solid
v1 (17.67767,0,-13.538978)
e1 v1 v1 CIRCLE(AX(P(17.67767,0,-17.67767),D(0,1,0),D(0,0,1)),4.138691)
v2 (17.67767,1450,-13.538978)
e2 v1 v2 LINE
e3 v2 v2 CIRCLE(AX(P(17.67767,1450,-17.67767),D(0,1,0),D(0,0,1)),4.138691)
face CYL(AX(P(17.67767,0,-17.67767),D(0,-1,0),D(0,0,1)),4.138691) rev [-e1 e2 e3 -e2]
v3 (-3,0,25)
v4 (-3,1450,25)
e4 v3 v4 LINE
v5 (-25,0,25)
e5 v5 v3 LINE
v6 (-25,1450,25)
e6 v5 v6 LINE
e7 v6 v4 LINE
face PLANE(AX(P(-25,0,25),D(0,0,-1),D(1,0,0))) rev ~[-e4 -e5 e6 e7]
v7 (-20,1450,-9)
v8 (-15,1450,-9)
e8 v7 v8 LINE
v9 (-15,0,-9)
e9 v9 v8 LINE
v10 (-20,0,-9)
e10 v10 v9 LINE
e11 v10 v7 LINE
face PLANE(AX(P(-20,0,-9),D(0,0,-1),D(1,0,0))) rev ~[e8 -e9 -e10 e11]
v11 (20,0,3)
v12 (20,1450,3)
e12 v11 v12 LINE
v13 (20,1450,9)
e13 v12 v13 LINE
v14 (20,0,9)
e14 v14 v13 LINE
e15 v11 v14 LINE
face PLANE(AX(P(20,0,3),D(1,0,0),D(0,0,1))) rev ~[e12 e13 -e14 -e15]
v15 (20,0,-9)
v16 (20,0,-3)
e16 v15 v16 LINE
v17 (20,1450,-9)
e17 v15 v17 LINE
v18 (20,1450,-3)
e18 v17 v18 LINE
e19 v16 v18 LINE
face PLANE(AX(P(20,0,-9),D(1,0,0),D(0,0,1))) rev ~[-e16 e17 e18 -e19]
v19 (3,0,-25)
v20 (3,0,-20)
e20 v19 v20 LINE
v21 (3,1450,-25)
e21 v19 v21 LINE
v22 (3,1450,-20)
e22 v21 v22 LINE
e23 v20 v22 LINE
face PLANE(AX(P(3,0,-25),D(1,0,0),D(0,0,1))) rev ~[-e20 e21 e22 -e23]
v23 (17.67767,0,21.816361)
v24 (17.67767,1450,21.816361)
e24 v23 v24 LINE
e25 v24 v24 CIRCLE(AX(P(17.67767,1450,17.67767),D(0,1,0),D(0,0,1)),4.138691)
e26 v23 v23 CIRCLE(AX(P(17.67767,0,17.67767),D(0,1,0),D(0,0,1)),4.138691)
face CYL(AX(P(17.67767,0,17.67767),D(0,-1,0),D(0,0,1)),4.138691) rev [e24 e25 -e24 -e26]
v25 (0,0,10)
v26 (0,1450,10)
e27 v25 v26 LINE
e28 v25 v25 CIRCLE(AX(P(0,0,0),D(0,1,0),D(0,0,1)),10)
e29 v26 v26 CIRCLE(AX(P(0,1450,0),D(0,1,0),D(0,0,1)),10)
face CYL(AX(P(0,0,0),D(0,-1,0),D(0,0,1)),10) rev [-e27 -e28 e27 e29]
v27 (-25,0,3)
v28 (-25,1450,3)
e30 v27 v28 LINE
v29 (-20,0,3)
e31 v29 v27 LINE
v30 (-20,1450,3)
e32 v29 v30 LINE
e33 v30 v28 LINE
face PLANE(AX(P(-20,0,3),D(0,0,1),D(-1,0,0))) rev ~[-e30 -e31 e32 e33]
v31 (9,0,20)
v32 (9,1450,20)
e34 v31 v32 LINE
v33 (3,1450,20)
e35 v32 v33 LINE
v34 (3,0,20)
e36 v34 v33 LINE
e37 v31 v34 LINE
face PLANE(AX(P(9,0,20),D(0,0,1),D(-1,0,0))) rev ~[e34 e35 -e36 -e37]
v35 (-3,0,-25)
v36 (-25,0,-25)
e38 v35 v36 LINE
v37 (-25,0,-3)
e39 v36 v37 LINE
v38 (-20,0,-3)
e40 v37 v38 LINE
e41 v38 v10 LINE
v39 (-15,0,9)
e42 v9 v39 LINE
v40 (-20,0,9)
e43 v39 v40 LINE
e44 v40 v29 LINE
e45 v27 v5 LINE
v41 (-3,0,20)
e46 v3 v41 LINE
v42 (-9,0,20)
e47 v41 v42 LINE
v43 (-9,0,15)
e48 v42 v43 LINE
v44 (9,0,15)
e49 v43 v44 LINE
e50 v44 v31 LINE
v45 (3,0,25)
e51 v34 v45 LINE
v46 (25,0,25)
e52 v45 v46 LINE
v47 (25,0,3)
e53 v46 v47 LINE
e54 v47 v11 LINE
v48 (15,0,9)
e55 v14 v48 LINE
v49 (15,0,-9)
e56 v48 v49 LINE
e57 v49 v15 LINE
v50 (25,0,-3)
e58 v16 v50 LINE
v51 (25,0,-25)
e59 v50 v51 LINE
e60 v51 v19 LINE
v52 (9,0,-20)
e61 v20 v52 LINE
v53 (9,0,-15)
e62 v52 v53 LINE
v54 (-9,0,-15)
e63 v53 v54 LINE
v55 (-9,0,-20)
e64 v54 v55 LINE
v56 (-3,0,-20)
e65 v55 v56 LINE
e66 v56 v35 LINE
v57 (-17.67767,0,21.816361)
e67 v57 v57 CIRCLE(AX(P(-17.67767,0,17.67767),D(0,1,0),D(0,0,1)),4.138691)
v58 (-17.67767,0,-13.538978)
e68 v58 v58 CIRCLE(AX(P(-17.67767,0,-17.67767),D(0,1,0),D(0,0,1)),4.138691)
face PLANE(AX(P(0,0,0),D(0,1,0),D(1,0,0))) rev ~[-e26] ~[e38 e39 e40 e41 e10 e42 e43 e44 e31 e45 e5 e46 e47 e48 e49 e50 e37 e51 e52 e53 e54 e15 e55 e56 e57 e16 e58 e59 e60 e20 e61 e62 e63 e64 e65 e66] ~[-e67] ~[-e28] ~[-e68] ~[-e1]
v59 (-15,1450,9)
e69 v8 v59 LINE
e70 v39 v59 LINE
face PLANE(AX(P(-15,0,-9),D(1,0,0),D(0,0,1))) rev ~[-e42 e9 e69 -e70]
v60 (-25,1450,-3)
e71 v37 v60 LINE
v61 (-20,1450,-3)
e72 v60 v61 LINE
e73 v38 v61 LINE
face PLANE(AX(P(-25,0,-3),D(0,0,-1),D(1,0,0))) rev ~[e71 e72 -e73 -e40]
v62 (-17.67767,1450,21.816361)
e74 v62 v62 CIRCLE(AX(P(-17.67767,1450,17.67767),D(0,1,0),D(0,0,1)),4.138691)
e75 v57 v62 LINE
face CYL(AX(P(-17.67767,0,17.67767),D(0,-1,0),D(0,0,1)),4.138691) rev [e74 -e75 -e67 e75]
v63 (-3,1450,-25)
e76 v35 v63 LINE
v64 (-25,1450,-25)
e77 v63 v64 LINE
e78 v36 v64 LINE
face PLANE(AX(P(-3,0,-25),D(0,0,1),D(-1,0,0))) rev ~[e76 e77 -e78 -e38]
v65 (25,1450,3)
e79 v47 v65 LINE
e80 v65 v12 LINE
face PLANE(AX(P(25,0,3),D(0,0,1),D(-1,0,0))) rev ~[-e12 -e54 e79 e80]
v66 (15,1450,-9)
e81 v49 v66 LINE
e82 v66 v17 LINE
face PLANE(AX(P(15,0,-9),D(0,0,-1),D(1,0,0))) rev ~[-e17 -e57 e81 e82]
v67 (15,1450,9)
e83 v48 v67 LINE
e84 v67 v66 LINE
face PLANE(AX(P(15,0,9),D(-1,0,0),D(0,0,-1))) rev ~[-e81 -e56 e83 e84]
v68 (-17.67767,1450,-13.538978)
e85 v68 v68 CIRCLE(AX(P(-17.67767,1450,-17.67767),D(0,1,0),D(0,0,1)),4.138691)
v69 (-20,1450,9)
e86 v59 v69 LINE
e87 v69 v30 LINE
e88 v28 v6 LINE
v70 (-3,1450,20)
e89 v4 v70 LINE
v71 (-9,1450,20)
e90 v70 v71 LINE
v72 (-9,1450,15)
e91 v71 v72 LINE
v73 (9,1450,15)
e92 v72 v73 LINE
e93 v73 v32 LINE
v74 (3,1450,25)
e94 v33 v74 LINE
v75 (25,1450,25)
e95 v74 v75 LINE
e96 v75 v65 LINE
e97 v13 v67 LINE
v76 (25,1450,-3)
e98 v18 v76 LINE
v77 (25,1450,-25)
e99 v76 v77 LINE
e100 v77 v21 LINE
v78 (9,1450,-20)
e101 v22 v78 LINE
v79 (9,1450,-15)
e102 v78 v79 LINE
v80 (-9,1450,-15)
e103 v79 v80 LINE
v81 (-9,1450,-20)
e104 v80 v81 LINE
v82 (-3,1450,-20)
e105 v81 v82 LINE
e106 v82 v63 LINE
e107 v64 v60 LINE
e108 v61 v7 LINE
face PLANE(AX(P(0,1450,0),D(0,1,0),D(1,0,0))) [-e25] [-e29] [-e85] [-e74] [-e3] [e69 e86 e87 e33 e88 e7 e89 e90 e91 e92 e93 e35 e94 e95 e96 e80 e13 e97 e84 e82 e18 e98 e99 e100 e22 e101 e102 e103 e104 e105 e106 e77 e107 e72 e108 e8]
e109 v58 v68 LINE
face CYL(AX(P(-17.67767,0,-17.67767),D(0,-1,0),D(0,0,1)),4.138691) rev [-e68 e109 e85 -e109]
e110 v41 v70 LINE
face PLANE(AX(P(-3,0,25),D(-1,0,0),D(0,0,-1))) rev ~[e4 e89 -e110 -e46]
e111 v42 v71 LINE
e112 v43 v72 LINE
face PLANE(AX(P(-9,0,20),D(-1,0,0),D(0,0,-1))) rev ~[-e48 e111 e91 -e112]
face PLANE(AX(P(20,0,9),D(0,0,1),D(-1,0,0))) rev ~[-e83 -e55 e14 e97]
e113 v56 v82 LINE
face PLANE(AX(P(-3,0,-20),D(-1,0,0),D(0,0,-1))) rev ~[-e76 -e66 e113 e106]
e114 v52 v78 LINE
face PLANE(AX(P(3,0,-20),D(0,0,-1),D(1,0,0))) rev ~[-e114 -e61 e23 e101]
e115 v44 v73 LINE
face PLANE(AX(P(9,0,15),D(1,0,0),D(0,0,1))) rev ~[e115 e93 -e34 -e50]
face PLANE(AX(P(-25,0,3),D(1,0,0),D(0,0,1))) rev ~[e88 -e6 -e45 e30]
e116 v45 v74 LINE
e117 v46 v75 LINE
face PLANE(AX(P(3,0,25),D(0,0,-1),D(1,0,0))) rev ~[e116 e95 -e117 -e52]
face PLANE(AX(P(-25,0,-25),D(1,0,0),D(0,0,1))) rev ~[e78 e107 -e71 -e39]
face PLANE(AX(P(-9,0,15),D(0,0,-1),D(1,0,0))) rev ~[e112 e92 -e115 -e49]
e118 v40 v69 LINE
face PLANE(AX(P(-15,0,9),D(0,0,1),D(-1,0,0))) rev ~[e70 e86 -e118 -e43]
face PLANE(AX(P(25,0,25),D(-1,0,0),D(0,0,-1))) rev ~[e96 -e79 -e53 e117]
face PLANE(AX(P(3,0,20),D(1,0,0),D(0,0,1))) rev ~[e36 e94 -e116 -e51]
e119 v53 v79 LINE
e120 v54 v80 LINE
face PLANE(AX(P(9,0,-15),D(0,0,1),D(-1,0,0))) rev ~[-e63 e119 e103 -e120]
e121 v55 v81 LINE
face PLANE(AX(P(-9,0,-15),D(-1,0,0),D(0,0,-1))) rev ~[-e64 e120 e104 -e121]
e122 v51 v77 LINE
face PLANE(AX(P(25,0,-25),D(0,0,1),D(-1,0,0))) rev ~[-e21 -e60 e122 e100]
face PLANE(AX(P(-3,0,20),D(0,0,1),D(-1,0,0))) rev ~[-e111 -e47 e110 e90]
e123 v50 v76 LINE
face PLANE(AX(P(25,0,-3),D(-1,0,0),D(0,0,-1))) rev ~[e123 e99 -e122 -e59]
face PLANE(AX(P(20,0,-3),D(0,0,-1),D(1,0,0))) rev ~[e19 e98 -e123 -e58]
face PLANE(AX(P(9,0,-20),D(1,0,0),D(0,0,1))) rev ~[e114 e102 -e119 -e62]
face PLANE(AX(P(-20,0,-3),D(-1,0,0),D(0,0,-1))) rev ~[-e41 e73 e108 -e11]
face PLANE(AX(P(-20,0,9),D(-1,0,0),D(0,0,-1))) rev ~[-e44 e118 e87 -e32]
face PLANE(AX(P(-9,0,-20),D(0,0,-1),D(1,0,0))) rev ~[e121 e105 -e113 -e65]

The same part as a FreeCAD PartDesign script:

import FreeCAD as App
import Part
import Sketcher
from FreeCAD import Vector
Q = App.Units.Quantity

doc = App.newDocument("Part")
params = doc.addObject("Spreadsheet::Sheet", "Params")
for row, (alias, value) in enumerate([
    ("sketch1_diameter", "20 mm"),
    ("sketch1_width", "22 mm"),
    ("sketch1_width2", "6 mm"),
    ("sketch1_width3", "18 mm"),
    ("sketch1_width4", "5 mm"),
    ("pad1_length", "1450 mm"),
], start=1):
    params.set(f"A{row}", alias)
    params.set(f"B{row}", "=" + value)
    params.setAlias(f"B{row}", alias)

body = doc.addObject("PartDesign::Body", "Body")

sketch1 = body.newObject("Sketcher::SketchObject", "Sketch")
sketch1.AttachmentSupport = (doc.getObject("XZ_Plane"), [""])
sketch1.MapMode = "FlatFace"
sketch1.addGeometry(Part.LineSegment(Vector(-25, 3, 0), Vector(-25, 25, 0)), False)
sketch1.addGeometry(Part.LineSegment(Vector(-25, 25, 0), Vector(-3, 25, 0)), False)
sketch1.addGeometry(Part.LineSegment(Vector(-3, 25, 0), Vector(-3, 20, 0)), False)
sketch1.addGeometry(Part.LineSegment(Vector(-3, 20, 0), Vector(-9, 20, 0)), False)
sketch1.addGeometry(Part.LineSegment(Vector(-9, 20, 0), Vector(-9, 15, 0)), False)
sketch1.addGeometry(Part.LineSegment(Vector(-9, 15, 0), Vector(9, 15, 0)), False)
sketch1.addGeometry(Part.LineSegment(Vector(9, 15, 0), Vector(9, 20, 0)), False)
sketch1.addGeometry(Part.LineSegment(Vector(9, 20, 0), Vector(3, 20, 0)), False)
sketch1.addGeometry(Part.LineSegment(Vector(3, 20, 0), Vector(3, 25, 0)), False)
sketch1.addGeometry(Part.LineSegment(Vector(3, 25, 0), Vector(25, 25, 0)), False)
sketch1.addGeometry(Part.LineSegment(Vector(25, 25, 0), Vector(25, 3, 0)), False)
sketch1.addGeometry(Part.LineSegment(Vector(25, 3, 0), Vector(20, 3, 0)), False)
sketch1.addGeometry(Part.LineSegment(Vector(20, 3, 0), Vector(20, 9, 0)), False)
sketch1.addGeometry(Part.LineSegment(Vector(20, 9, 0), Vector(15, 9, 0)), False)
sketch1.addGeometry(Part.LineSegment(Vector(15, 9, 0), Vector(15, -9, 0)), False)
sketch1.addGeometry(Part.LineSegment(Vector(15, -9, 0), Vector(20, -9, 0)), False)
sketch1.addGeometry(Part.LineSegment(Vector(20, -9, 0), Vector(20, -3, 0)), False)
sketch1.addGeometry(Part.LineSegment(Vector(20, -3, 0), Vector(25, -3, 0)), False)
sketch1.addGeometry(Part.LineSegment(Vector(25, -3, 0), Vector(25, -25, 0)), False)
sketch1.addGeometry(Part.LineSegment(Vector(25, -25, 0), Vector(3, -25, 0)), False)
sketch1.addGeometry(Part.LineSegment(Vector(3, -25, 0), Vector(3, -20, 0)), False)
sketch1.addGeometry(Part.LineSegment(Vector(3, -20, 0), Vector(9, -20, 0)), False)
sketch1.addGeometry(Part.LineSegment(Vector(9, -20, 0), Vector(9, -15, 0)), False)
sketch1.addGeometry(Part.LineSegment(Vector(9, -15, 0), Vector(-9, -15, 0)), False)
sketch1.addGeometry(Part.LineSegment(Vector(-9, -15, 0), Vector(-9, -20, 0)), False)
sketch1.addGeometry(Part.LineSegment(Vector(-9, -20, 0), Vector(-3, -20, 0)), False)
sketch1.addGeometry(Part.LineSegment(Vector(-3, -20, 0), Vector(-3, -25, 0)), False)
sketch1.addGeometry(Part.LineSegment(Vector(-3, -25, 0), Vector(-25, -25, 0)), False)
sketch1.addGeometry(Part.LineSegment(Vector(-25, -25, 0), Vector(-25, -3, 0)), False)
sketch1.addGeometry(Part.LineSegment(Vector(-25, -3, 0), Vector(-20, -3, 0)), False)
sketch1.addGeometry(Part.LineSegment(Vector(-20, -3, 0), Vector(-20, -9, 0)), False)
sketch1.addGeometry(Part.LineSegment(Vector(-20, -9, 0), Vector(-15, -9, 0)), False)
sketch1.addGeometry(Part.LineSegment(Vector(-15, -9, 0), Vector(-15, 9, 0)), False)
sketch1.addGeometry(Part.LineSegment(Vector(-15, 9, 0), Vector(-20, 9, 0)), False)
sketch1.addGeometry(Part.LineSegment(Vector(-20, 9, 0), Vector(-20, 3, 0)), False)
sketch1.addGeometry(Part.LineSegment(Vector(-20, 3, 0), Vector(-25, 3, 0)), False)
sketch1.addGeometry(Part.Circle(Vector(-17.7, 17.7, 0), Vector(0, 0, 1), 4.1), False)
sketch1.addGeometry(Part.Circle(Vector(17.7, 17.7, 0), Vector(0, 0, 1), 4.1), False)
sketch1.addGeometry(Part.Circle(Vector(-17.7, -17.7, 0), Vector(0, 0, 1), 4.1), False)
sketch1.addGeometry(Part.Circle(Vector(0, 0, 0), Vector(0, 0, 1), 10), False)
sketch1.addGeometry(Part.Circle(Vector(17.7, -17.7, 0), Vector(0, 0, 1), 4.1), False)
sketch1.addConstraint(Sketcher.Constraint("Coincident", 0, 2, 1, 1))
sketch1.addConstraint(Sketcher.Constraint("Coincident", 1, 2, 2, 1))
sketch1.addConstraint(Sketcher.Constraint("Coincident", 2, 2, 3, 1))
sketch1.addConstraint(Sketcher.Constraint("Coincident", 3, 2, 4, 1))
sketch1.addConstraint(Sketcher.Constraint("Coincident", 4, 2, 5, 1))
sketch1.addConstraint(Sketcher.Constraint("Coincident", 5, 2, 6, 1))
sketch1.addConstraint(Sketcher.Constraint("Coincident", 6, 2, 7, 1))
sketch1.addConstraint(Sketcher.Constraint("Coincident", 7, 2, 8, 1))
sketch1.addConstraint(Sketcher.Constraint("Coincident", 8, 2, 9, 1))
sketch1.addConstraint(Sketcher.Constraint("Coincident", 9, 2, 10, 1))
sketch1.addConstraint(Sketcher.Constraint("Coincident", 10, 2, 11, 1))
sketch1.addConstraint(Sketcher.Constraint("Coincident", 11, 2, 12, 1))
sketch1.addConstraint(Sketcher.Constraint("Coincident", 12, 2, 13, 1))
sketch1.addConstraint(Sketcher.Constraint("Coincident", 13, 2, 14, 1))
sketch1.addConstraint(Sketcher.Constraint("Coincident", 14, 2, 15, 1))
sketch1.addConstraint(Sketcher.Constraint("Coincident", 15, 2, 16, 1))
sketch1.addConstraint(Sketcher.Constraint("Coincident", 16, 2, 17, 1))
sketch1.addConstraint(Sketcher.Constraint("Coincident", 17, 2, 18, 1))
sketch1.addConstraint(Sketcher.Constraint("Coincident", 18, 2, 19, 1))
sketch1.addConstraint(Sketcher.Constraint("Coincident", 19, 2, 20, 1))
sketch1.addConstraint(Sketcher.Constraint("Coincident", 20, 2, 21, 1))
sketch1.addConstraint(Sketcher.Constraint("Coincident", 21, 2, 22, 1))
sketch1.addConstraint(Sketcher.Constraint("Coincident", 22, 2, 23, 1))
sketch1.addConstraint(Sketcher.Constraint("Coincident", 23, 2, 24, 1))
sketch1.addConstraint(Sketcher.Constraint("Coincident", 24, 2, 25, 1))
sketch1.addConstraint(Sketcher.Constraint("Coincident", 25, 2, 26, 1))
sketch1.addConstraint(Sketcher.Constraint("Coincident", 26, 2, 27, 1))
sketch1.addConstraint(Sketcher.Constraint("Coincident", 27, 2, 28, 1))
sketch1.addConstraint(Sketcher.Constraint("Coincident", 28, 2, 29, 1))
sketch1.addConstraint(Sketcher.Constraint("Coincident", 29, 2, 30, 1))
sketch1.addConstraint(Sketcher.Constraint("Coincident", 30, 2, 31, 1))
sketch1.addConstraint(Sketcher.Constraint("Coincident", 31, 2, 32, 1))
sketch1.addConstraint(Sketcher.Constraint("Coincident", 32, 2, 33, 1))
sketch1.addConstraint(Sketcher.Constraint("Coincident", 33, 2, 34, 1))
sketch1.addConstraint(Sketcher.Constraint("Coincident", 34, 2, 35, 1))
sketch1.addConstraint(Sketcher.Constraint("Coincident", 35, 2, 0, 1))
sketch1.addConstraint(Sketcher.Constraint("Vertical", 0))
sketch1.addConstraint(Sketcher.Constraint("Horizontal", 1))
sketch1.addConstraint(Sketcher.Constraint("Vertical", 2))
sketch1.addConstraint(Sketcher.Constraint("Horizontal", 3))
sketch1.addConstraint(Sketcher.Constraint("Vertical", 4))
sketch1.addConstraint(Sketcher.Constraint("Horizontal", 5))
sketch1.addConstraint(Sketcher.Constraint("Vertical", 6))
sketch1.addConstraint(Sketcher.Constraint("Horizontal", 7))
sketch1.addConstraint(Sketcher.Constraint("Vertical", 8))
sketch1.addConstraint(Sketcher.Constraint("Horizontal", 9))
sketch1.addConstraint(Sketcher.Constraint("Vertical", 10))
sketch1.addConstraint(Sketcher.Constraint("Horizontal", 11))
sketch1.addConstraint(Sketcher.Constraint("Vertical", 12))
sketch1.addConstraint(Sketcher.Constraint("Horizontal", 13))
sketch1.addConstraint(Sketcher.Constraint("Vertical", 14))
sketch1.addConstraint(Sketcher.Constraint("Horizontal", 15))
sketch1.addConstraint(Sketcher.Constraint("Vertical", 16))
sketch1.addConstraint(Sketcher.Constraint("Horizontal", 17))
sketch1.addConstraint(Sketcher.Constraint("Vertical", 18))
sketch1.addConstraint(Sketcher.Constraint("Horizontal", 19))
sketch1.addConstraint(Sketcher.Constraint("Vertical", 20))
sketch1.addConstraint(Sketcher.Constraint("Horizontal", 21))
sketch1.addConstraint(Sketcher.Constraint("Vertical", 22))
sketch1.addConstraint(Sketcher.Constraint("Horizontal", 23))
sketch1.addConstraint(Sketcher.Constraint("Vertical", 24))
sketch1.addConstraint(Sketcher.Constraint("Horizontal", 25))
sketch1.addConstraint(Sketcher.Constraint("Vertical", 26))
sketch1.addConstraint(Sketcher.Constraint("Horizontal", 27))
sketch1.addConstraint(Sketcher.Constraint("Vertical", 28))
sketch1.addConstraint(Sketcher.Constraint("Horizontal", 29))
sketch1.addConstraint(Sketcher.Constraint("Vertical", 30))
sketch1.addConstraint(Sketcher.Constraint("Horizontal", 31))
sketch1.addConstraint(Sketcher.Constraint("Vertical", 32))
sketch1.addConstraint(Sketcher.Constraint("Horizontal", 33))
sketch1.addConstraint(Sketcher.Constraint("Vertical", 34))
sketch1.addConstraint(Sketcher.Constraint("Horizontal", 35))
sketch1.addConstraint(Sketcher.Constraint("Coincident", 39, 3, -1, 1))
sketch1.addConstraint(Sketcher.Constraint("Equal", 36, 37))
sketch1.addConstraint(Sketcher.Constraint("Equal", 37, 38))
sketch1.addConstraint(Sketcher.Constraint("Equal", 38, 40))
sketch1.addConstraint(Sketcher.Constraint("Symmetric", 37, 3, 38, 3, -1, 1))
sketch1.addConstraint(Sketcher.Constraint("Symmetric", 36, 3, 40, 3, -1, 1))
sketch1.addConstraint(Sketcher.Constraint("Symmetric", 0, 2, 18, 2, -1, 1))
sketch1.addConstraint(Sketcher.Constraint("Symmetric", 2, 2, 20, 2, -1, 1))
sketch1.addConstraint(Sketcher.Constraint("Symmetric", 4, 2, 22, 2, -1, 1))
sketch1.addConstraint(Sketcher.Constraint("Symmetric", 6, 2, 24, 2, -1, 1))
sketch1.addConstraint(Sketcher.Constraint("Symmetric", 8, 2, 26, 2, -1, 1))
sketch1.addConstraint(Sketcher.Constraint("Symmetric", 10, 2, 28, 2, -1, 1))
sketch1.addConstraint(Sketcher.Constraint("Symmetric", 12, 2, 30, 2, -1, 1))
sketch1.addConstraint(Sketcher.Constraint("Symmetric", 14, 2, 32, 2, -1, 1))
sketch1.addConstraint(Sketcher.Constraint("Symmetric", 16, 2, 34, 2, -1, 1))
sketch1.addConstraint(Sketcher.Constraint("Symmetric", 36, 3, 37, 3, -2))
sketch1.addConstraint(Sketcher.Constraint("Symmetric", 3, 2, 6, 2, -2))
sketch1.addConstraint(Sketcher.Constraint("Symmetric", 1, 2, 8, 2, -2))
sketch1.addConstraint(Sketcher.Constraint("Symmetric", 17, 2, 28, 2, -2))
sketch1.addConstraint(Sketcher.Constraint("Symmetric", 15, 2, 30, 2, -2))
sketch1.addConstraint(Sketcher.Constraint("Equal", 11, 13))
sketch1.addConstraint(Sketcher.Constraint("Equal", 27, 0))
sketch1.addConstraint(Sketcher.Constraint("Equal", 35, 2))
sketch1.addConstraint(Sketcher.Constraint("Equal", 2, 4))
sketch1.addConstraint(Sketcher.Constraint("Equal", 25, 12))
sketch1.addConstraint(Sketcher.Constraint("Equal", 23, 14))
sketch1.addConstraint(Sketcher.Constraint("Diameter", 39, Q("20 mm")))
sketch1.addConstraint(Sketcher.Constraint("DistanceX", 1, 1, 1, 2, Q("22 mm")))
sketch1.addConstraint(Sketcher.Constraint("DistanceX", 3, 2, 3, 1, Q("6 mm")))
sketch1.addConstraint(Sketcher.Constraint("DistanceX", 5, 1, 5, 2, Q("18 mm")))
sketch1.addConstraint(Sketcher.Constraint("DistanceX", 11, 2, 11, 1, Q("5 mm")))
sketch1.addConstraint(Sketcher.Constraint("Diameter", 36, Q("8.277382 mm")))
sketch1.addConstraint(Sketcher.Constraint("DistanceX", 36, 3, -1, 1, Q("17.67767 mm")))
sketch1.addConstraint(Sketcher.Constraint("DistanceY", -1, 1, 36, 3, Q("17.67767 mm")))
sketch1.setExpression("Constraints[98]", "Params.sketch1_diameter")
sketch1.setExpression("Constraints[99]", "Params.sketch1_width")
sketch1.setExpression("Constraints[100]", "Params.sketch1_width2")
sketch1.setExpression("Constraints[101]", "Params.sketch1_width3")
sketch1.setExpression("Constraints[102]", "Params.sketch1_width4")
pad1 = body.newObject("PartDesign::Pad", "Pad")
pad1.Profile = sketch1
pad1.setExpression("Length", "Params.pad1_length")
pad1.Reversed = True

doc.recompute()
